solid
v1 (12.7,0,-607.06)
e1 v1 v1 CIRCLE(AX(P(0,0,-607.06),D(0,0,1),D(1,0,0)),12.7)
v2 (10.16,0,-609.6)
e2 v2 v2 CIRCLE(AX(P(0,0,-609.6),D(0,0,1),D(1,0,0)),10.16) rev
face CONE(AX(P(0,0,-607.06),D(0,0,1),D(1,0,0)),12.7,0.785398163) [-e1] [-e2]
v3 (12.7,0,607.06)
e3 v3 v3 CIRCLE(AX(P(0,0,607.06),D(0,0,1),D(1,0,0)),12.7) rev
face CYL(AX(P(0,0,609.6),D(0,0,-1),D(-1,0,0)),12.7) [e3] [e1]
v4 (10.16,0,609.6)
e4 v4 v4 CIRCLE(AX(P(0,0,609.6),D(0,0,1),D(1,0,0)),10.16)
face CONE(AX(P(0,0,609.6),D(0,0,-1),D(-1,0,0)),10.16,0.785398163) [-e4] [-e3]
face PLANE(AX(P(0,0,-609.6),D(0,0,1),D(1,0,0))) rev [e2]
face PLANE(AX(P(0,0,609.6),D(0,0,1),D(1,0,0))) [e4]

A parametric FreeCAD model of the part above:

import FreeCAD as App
import Part
import Sketcher
Q = App.Units.Quantity


def edges_at(feature, points):
    """Names of the edges that pass closest to the given points."""
    edges = feature.Shape.Edges
    near = lambda p: min(range(len(edges)), key=lambda i: edges[i].distToShape(Part.Vertex(*p))[0])
    return sorted({f"Edge{near(p) + 1}" for p in points})

doc = App.newDocument("Part")
params = doc.addObject("Spreadsheet::Sheet", "Params")
for row, (alias, value) in enumerate([
    ("sketch1_diameter", "1 in"),
    ("pad1_length", "48 in"),
    ("chamfer_size", "0.1 in"),
], start=1):
    params.set(f"A{row}", alias)
    params.set(f"B{row}", "=" + value)
    params.setAlias(f"B{row}", alias)

body = doc.addObject("PartDesign::Body", "Body")

# Sketch on XY plane
sketch1 = doc.addObject("Sketcher::SketchObject", "Sketch")
body.addObject(sketch1)
sketch1.AttachmentSupport = (doc.XY_Plane, [""])
sketch1.MapMode = "FlatFace"
sketch1.addGeometry(Part.Circle(App.Vector(0, 0, 0), App.Vector(0, 0, 1), 12.7), False)
sketch1.addConstraint(Sketcher.Constraint("Coincident", 0, 3, -1, 1))
sketch1.addConstraint(Sketcher.Constraint("Diameter", 0, Q("1 in")))
sketch1.setExpression("Constraints[1]", "Params.sketch1_diameter")
pad1 = doc.addObject("PartDesign::Pad", "Pad")
body.addObject(pad1)
pad1.Profile = sketch1
pad1.setExpression("Length", "Params.pad1_length")
pad1.Midplane = True
doc.recompute()

chamfer = doc.addObject("PartDesign::Chamfer", "Chamfer")
body.addObject(chamfer)
chamfer.Base = (pad1, edges_at(pad1, [(-12.7, 0, -609.6), (-12.7, 0, 609.6)]))
chamfer.setExpression("Size", "Params.chamfer_size")

doc.recompute()
